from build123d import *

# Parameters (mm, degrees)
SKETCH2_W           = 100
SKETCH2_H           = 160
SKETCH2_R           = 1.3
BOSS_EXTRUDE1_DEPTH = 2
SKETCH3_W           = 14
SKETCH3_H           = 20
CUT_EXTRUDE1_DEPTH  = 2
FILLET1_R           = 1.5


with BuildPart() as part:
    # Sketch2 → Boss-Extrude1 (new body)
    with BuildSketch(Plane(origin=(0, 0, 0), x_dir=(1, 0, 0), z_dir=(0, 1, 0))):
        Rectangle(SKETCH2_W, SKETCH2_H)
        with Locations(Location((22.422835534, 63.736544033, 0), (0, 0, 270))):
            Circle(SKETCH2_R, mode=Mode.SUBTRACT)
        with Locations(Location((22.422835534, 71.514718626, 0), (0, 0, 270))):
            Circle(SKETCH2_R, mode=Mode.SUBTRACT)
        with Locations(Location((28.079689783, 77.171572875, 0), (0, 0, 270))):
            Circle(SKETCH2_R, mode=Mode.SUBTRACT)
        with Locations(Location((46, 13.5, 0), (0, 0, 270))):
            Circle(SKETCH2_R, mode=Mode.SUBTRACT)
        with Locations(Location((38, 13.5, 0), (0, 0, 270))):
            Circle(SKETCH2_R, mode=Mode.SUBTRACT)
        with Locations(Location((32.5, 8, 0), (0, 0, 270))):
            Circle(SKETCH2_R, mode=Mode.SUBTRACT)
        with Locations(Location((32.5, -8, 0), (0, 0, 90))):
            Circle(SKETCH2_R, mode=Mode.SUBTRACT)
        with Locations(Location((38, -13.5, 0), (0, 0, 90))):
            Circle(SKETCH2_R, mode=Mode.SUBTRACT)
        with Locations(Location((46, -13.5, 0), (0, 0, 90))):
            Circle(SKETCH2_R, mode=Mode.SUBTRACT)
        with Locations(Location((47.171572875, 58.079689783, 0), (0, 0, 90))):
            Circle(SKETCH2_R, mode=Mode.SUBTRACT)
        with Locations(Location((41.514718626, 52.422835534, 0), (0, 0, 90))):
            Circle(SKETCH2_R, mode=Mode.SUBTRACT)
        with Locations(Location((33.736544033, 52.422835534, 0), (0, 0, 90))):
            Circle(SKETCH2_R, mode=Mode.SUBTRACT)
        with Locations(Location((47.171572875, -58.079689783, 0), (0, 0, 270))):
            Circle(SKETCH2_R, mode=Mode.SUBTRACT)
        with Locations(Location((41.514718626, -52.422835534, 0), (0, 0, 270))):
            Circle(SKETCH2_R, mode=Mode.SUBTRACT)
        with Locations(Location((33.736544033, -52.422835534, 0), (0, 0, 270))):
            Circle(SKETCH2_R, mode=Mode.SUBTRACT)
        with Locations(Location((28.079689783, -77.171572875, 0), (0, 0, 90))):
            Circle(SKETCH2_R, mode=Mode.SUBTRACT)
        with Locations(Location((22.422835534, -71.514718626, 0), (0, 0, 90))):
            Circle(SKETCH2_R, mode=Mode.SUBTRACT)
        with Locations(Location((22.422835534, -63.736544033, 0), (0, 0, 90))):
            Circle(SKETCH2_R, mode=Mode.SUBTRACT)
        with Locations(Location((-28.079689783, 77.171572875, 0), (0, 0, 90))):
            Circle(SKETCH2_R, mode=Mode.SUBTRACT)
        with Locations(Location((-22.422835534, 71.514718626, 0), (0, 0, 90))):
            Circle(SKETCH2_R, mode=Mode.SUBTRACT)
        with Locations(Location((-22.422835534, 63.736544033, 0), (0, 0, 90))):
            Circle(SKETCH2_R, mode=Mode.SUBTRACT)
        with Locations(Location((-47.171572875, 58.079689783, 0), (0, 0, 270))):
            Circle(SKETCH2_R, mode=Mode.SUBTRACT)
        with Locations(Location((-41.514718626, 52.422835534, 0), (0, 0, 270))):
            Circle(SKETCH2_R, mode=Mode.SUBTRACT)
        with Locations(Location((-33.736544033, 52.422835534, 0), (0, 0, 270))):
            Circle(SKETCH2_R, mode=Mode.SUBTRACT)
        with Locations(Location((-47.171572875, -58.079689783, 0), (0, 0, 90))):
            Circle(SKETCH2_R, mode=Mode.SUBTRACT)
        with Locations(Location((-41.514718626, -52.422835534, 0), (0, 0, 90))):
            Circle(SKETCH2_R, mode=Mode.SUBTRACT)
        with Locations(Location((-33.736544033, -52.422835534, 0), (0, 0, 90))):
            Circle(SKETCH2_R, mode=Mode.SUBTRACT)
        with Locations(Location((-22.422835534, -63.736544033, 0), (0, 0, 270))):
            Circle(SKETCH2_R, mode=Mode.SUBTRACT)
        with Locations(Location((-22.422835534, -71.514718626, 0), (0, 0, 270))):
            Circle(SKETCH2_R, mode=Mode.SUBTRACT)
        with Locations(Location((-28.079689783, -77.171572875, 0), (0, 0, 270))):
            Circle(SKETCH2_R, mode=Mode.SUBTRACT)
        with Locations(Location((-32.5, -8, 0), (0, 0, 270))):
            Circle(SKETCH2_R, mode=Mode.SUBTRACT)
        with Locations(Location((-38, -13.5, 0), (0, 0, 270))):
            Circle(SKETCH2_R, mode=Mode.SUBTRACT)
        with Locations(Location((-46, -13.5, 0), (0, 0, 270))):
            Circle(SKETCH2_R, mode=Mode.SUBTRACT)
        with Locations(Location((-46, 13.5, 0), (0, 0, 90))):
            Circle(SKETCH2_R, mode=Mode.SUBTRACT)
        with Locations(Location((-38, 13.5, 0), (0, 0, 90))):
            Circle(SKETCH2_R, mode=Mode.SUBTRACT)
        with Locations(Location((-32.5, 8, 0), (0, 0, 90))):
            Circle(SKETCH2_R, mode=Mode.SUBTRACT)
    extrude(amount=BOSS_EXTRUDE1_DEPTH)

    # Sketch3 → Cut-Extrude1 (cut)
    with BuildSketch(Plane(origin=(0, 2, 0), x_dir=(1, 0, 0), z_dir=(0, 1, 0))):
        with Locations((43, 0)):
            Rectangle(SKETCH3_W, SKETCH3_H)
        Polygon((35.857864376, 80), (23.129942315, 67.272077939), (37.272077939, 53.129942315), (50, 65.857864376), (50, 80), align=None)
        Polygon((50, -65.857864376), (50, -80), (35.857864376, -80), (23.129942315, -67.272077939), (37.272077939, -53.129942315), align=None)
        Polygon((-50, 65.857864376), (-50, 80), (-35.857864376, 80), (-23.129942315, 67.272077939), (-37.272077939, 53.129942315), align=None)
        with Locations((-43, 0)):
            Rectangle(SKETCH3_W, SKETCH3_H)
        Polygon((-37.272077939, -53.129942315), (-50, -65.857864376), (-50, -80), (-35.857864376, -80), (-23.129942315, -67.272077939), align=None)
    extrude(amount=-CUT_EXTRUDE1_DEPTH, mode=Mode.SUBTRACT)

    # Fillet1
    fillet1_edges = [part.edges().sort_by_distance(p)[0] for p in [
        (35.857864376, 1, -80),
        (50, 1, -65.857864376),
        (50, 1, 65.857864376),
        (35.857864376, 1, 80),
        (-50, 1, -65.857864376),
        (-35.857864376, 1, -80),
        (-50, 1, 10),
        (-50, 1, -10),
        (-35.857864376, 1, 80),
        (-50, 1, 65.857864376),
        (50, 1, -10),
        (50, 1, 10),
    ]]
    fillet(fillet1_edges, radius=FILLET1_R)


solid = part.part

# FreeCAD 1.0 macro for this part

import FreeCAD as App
import Part
import Sketcher
from FreeCAD import Vector


def edges_at(feature, points):
    """Names of the edges that pass closest to the given points."""
    edges = feature.Shape.Edges
    near = lambda p: min(range(len(edges)), key=lambda i: edges[i].distToShape(Part.Vertex(*p))[0])
    return sorted({f"Edge{near(p) + 1}" for p in points})


def add_polygon(sketch, points):
    """Adds a closed chain of lines whose ends are joined by coincident constraints."""
    first, n = sketch.GeometryCount, len(points)
    for a, b in zip(points, points[1:] + points[:1]):
        sketch.addGeometry(Part.LineSegment(App.Vector(*a, 0), App.Vector(*b, 0)), False)
    for i in range(n):
        sketch.addConstraint(Sketcher.Constraint("Coincident", first + i, 2, first + (i + 1) % n, 1))

doc = App.newDocument("Part")
body = doc.addObject("PartDesign::Body", "Body")

sketch1 = body.newObject("Sketcher::SketchObject", "Sketch")
sketch1.AttachmentSupport = (doc.getObject("XZ_Plane"), [""])
sketch1.MapMode = "FlatFace"
add_polygon(sketch1, [(-50, -80), (-50, 80), (50, 80), (50, -80)])
sketch1.addGeometry(Part.Circle(Vector(-28.07969, 77.171573, 0), Vector(0, 0, 1), 1.3), False)
sketch1.addGeometry(Part.Circle(Vector(-47.171573, 58.07969, 0), Vector(0, 0, 1), 1.3), False)
sketch1.addGeometry(Part.Circle(Vector(-41.514719, 52.422836, 0), Vector(0, 0, 1), 1.3), False)
sketch1.addGeometry(Part.Circle(Vector(-33.736544, 52.422836, 0), Vector(0, 0, 1), 1.3), False)
sketch1.addGeometry(Part.Circle(Vector(-22.422836, 71.514719, 0), Vector(0, 0, 1), 1.3), False)
sketch1.addGeometry(Part.Circle(Vector(-22.422836, 63.736544, 0), Vector(0, 0, 1), 1.3), False)
sketch1.addGeometry(Part.Circle(Vector(-46, 13.5, 0), Vector(0, 0, 1), 1.3), False)
sketch1.addGeometry(Part.Circle(Vector(-38, 13.5, 0), Vector(0, 0, 1), 1.3), False)
sketch1.addGeometry(Part.Circle(Vector(-32.5, 8, 0), Vector(0, 0, 1), 1.3), False)
sketch1.addGeometry(Part.Circle(Vector(22.422836, 71.514719, 0), Vector(0, 0, 1), 1.3), False)
sketch1.addGeometry(Part.Circle(Vector(22.422836, 63.736544, 0), Vector(0, 0, 1), 1.3), False)
sketch1.addGeometry(Part.Circle(Vector(28.07969, 77.171573, 0), Vector(0, 0, 1), 1.3), False)
sketch1.addGeometry(Part.Circle(Vector(33.736544, 52.422836, 0), Vector(0, 0, 1), 1.3), False)
sketch1.addGeometry(Part.Circle(Vector(41.514719, 52.422836, 0), Vector(0, 0, 1), 1.3), False)
sketch1.addGeometry(Part.Circle(Vector(47.171573, 58.07969, 0), Vector(0, 0, 1), 1.3), False)
sketch1.addGeometry(Part.Circle(Vector(32.5, 8, 0), Vector(0, 0, 1), 1.3), False)
sketch1.addGeometry(Part.Circle(Vector(38, 13.5, 0), Vector(0, 0, 1), 1.3), False)
sketch1.addGeometry(Part.Circle(Vector(46, 13.5, 0), Vector(0, 0, 1), 1.3), False)
sketch1.addGeometry(Part.Circle(Vector(-46, -13.5, 0), Vector(0, 0, 1), 1.3), False)
sketch1.addGeometry(Part.Circle(Vector(-38, -13.5, 0), Vector(0, 0, 1), 1.3), False)
sketch1.addGeometry(Part.Circle(Vector(-32.5, -8, 0), Vector(0, 0, 1), 1.3), False)
sketch1.addGeometry(Part.Circle(Vector(-47.171573, -58.07969, 0), Vector(0, 0, 1), 1.3), False)
sketch1.addGeometry(Part.Circle(Vector(-41.514719, -52.422836, 0), Vector(0, 0, 1), 1.3), False)
sketch1.addGeometry(Part.Circle(Vector(-33.736544, -52.422836, 0), Vector(0, 0, 1), 1.3), False)
sketch1.addGeometry(Part.Circle(Vector(-28.07969, -77.171573, 0), Vector(0, 0, 1), 1.3), False)
sketch1.addGeometry(Part.Circle(Vector(-22.422836, -63.736544, 0), Vector(0, 0, 1), 1.3), False)
sketch1.addGeometry(Part.Circle(Vector(-22.422836, -71.514719, 0), Vector(0, 0, 1), 1.3), False)
sketch1.addGeometry(Part.Circle(Vector(32.5, -8, 0), Vector(0, 0, 1), 1.3), False)
sketch1.addGeometry(Part.Circle(Vector(38, -13.5, 0), Vector(0, 0, 1), 1.3), False)
sketch1.addGeometry(Part.Circle(Vector(46, -13.5, 0), Vector(0, 0, 1), 1.3), False)
sketch1.addGeometry(Part.Circle(Vector(22.422836, -63.736544, 0), Vector(0, 0, 1), 1.3), False)
sketch1.addGeometry(Part.Circle(Vector(22.422836, -71.514719, 0), Vector(0, 0, 1), 1.3), False)
sketch1.addGeometry(Part.Circle(Vector(33.736544, -52.422836, 0), Vector(0, 0, 1), 1.3), False)
sketch1.addGeometry(Part.Circle(Vector(41.514719, -52.422836, 0), Vector(0, 0, 1), 1.3), False)
sketch1.addGeometry(Part.Circle(Vector(47.171573, -58.07969, 0), Vector(0, 0, 1), 1.3), False)
sketch1.addGeometry(Part.Circle(Vector(28.07969, -77.171573, 0), Vector(0, 0, 1), 1.3), False)
sketch1.addConstraint(Sketcher.Constraint("Vertical", 0))
sketch1.addConstraint(Sketcher.Constraint("Horizontal", 1))
sketch1.addConstraint(Sketcher.Constraint("Vertical", 2))
sketch1.addConstraint(Sketcher.Constraint("Horizontal", 3))
sketch1.addConstraint(Sketcher.Constraint("Equal", 4, 5))
sketch1.addConstraint(Sketcher.Constraint("Equal", 5, 6))
sketch1.addConstraint(Sketcher.Constraint("Equal", 6, 7))
sketch1.addConstraint(Sketcher.Constraint("Equal", 7, 8))
sketch1.addConstraint(Sketcher.Constraint("Equal", 8, 9))
sketch1.addConstraint(Sketcher.Constraint("Equal", 9, 10))
sketch1.addConstraint(Sketcher.Constraint("Equal", 10, 11))
sketch1.addConstraint(Sketcher.Constraint("Equal", 11, 12))
sketch1.addConstraint(Sketcher.Constraint("Equal", 12, 13))
sketch1.addConstraint(Sketcher.Constraint("Equal", 13, 14))
sketch1.addConstraint(Sketcher.Constraint("Equal", 14, 15))
sketch1.addConstraint(Sketcher.Constraint("Equal", 15, 16))
sketch1.addConstraint(Sketcher.Constraint("Equal", 16, 17))
sketch1.addConstraint(Sketcher.Constraint("Equal", 17, 18))
sketch1.addConstraint(Sketcher.Constraint("Equal", 18, 19))
sketch1.addConstraint(Sketcher.Constraint("Equal", 19, 20))
sketch1.addConstraint(Sketcher.Constraint("Equal", 20, 21))
sketch1.addConstraint(Sketcher.Constraint("Equal", 21, 22))
sketch1.addConstraint(Sketcher.Constraint("Equal", 22, 23))
sketch1.addConstraint(Sketcher.Constraint("Equal", 23, 24))
sketch1.addConstraint(Sketcher.Constraint("Equal", 24, 25))
sketch1.addConstraint(Sketcher.Constraint("Equal", 25, 26))
sketch1.addConstraint(Sketcher.Constraint("Equal", 26, 27))
sketch1.addConstraint(Sketcher.Constraint("Equal", 27, 28))
sketch1.addConstraint(Sketcher.Constraint("Equal", 28, 29))
sketch1.addConstraint(Sketcher.Constraint("Equal", 29, 30))
sketch1.addConstraint(Sketcher.Constraint("Equal", 30, 31))
sketch1.addConstraint(Sketcher.Constraint("Equal", 31, 32))
sketch1.addConstraint(Sketcher.Constraint("Equal", 32, 33))
sketch1.addConstraint(Sketcher.Constraint("Equal", 33, 34))
sketch1.addConstraint(Sketcher.Constraint("Equal", 34, 35))
sketch1.addConstraint(Sketcher.Constraint("Equal", 35, 36))
sketch1.addConstraint(Sketcher.Constraint("Equal", 36, 37))
sketch1.addConstraint(Sketcher.Constraint("Equal", 37, 38))
sketch1.addConstraint(Sketcher.Constraint("Equal", 38, 39))
sketch1.addConstraint(Sketcher.Constraint("Symmetric", 21, 3, 22, 3, -1, 1))
sketch1.addConstraint(Sketcher.Constraint("Symmetric", 20, 3, 23, 3, -1, 1))
sketch1.addConstraint(Sketcher.Constraint("Symmetric", 19, 3, 24, 3, -1, 1))
sketch1.addConstraint(Sketcher.Constraint("Symmetric", 18, 3, 25, 3, -1, 1))
sketch1.addConstraint(Sketcher.Constraint("Symmetric", 17, 3, 26, 3, -1, 1))
sketch1.addConstraint(Sketcher.Constraint("Symmetric", 16, 3, 27, 3, -1, 1))
sketch1.addConstraint(Sketcher.Constraint("Symmetric", 15, 3, 28, 3, -1, 1))
sketch1.addConstraint(Sketcher.Constraint("Symmetric", 14, 3, 29, 3, -1, 1))
sketch1.addConstraint(Sketcher.Constraint("Symmetric", 13, 3, 30, 3, -1, 1))
sketch1.addConstraint(Sketcher.Constraint("Symmetric", 12, 3, 31, 3, -1, 1))
sketch1.addConstraint(Sketcher.Constraint("Symmetric", 11, 3, 32, 3, -1, 1))
sketch1.addConstraint(Sketcher.Constraint("Symmetric", 10, 3, 33, 3, -1, 1))
sketch1.addConstraint(Sketcher.Constraint("Symmetric", 9, 3, 34, 3, -1, 1))
sketch1.addConstraint(Sketcher.Constraint("Symmetric", 8, 3, 35, 3, -1, 1))
sketch1.addConstraint(Sketcher.Constraint("Symmetric", 7, 3, 36, 3, -1, 1))
sketch1.addConstraint(Sketcher.Constraint("Symmetric", 6, 3, 37, 3, -1, 1))
sketch1.addConstraint(Sketcher.Constraint("Symmetric", 5, 3, 38, 3, -1, 1))
sketch1.addConstraint(Sketcher.Constraint("Symmetric", 4, 3, 39, 3, -1, 1))
sketch1.addConstraint(Sketcher.Constraint("Symmetric", 0, 2, 2, 2, -1, 1))
sketch1.addConstraint(Sketcher.Constraint("Symmetric", 8, 3, 13, 3, -2))
sketch1.addConstraint(Sketcher.Constraint("Symmetric", 9, 3, 14, 3, -2))
sketch1.addConstraint(Sketcher.Constraint("Symmetric", 4, 3, 15, 3, -2))
sketch1.addConstraint(Sketcher.Constraint("Symmetric", 7, 3, 16, 3, -2))
sketch1.addConstraint(Sketcher.Constraint("Symmetric", 6, 3, 17, 3, -2))
sketch1.addConstraint(Sketcher.Constraint("Symmetric", 5, 3, 18, 3, -2))
sketch1.addConstraint(Sketcher.Constraint("Symmetric", 12, 3, 19, 3, -2))
sketch1.addConstraint(Sketcher.Constraint("Symmetric", 11, 3, 20, 3, -2))
sketch1.addConstraint(Sketcher.Constraint("Symmetric", 10, 3, 21, 3, -2))
sketch1.addConstraint(Sketcher.Constraint("Horizontal", 6, 3, 7, 3))
sketch1.addConstraint(Sketcher.Constraint("Horizontal", 10, 3, 11, 3))
sketch1.addConstraint(Sketcher.Constraint("Vertical", 8, 3, 9, 3))
sketch1.addConstraint(Sketcher.Constraint("Diameter", 4, 2.6))
sketch1.addConstraint(Sketcher.Constraint("DistanceX", 1, 1, 1, 2, 100.0))
sketch1.addConstraint(Sketcher.Constraint("DistanceY", 0, 1, 0, 2, 160.0))
sketch1.addConstraint(Sketcher.Constraint("DistanceX", 10, 3, -1, 1, 46.0))
sketch1.addConstraint(Sketcher.Constraint("DistanceX", 11, 3, -1, 1, 38.0))
sketch1.addConstraint(Sketcher.Constraint("DistanceY", -1, 1, 12, 3, 8.0))
sketch1.addConstraint(Sketcher.Constraint("DistanceY", 22, 3, 10, 3, 27.0))
sketch1.addConstraint(Sketcher.Constraint("DistanceX", 12, 3, -1, 1, 32.5))
sketch1.addConstraint(Sketcher.Constraint("DistanceX", 4, 3, -1, 1, 28.07969))
sketch1.addConstraint(Sketcher.Constraint("DistanceY", -1, 1, 5, 3, 58.07969))
sketch1.addConstraint(Sketcher.Constraint("DistanceX", 6, 3, -1, 1, 41.514719))
sketch1.addConstraint(Sketcher.Constraint("DistanceY", -1, 1, 8, 3, 71.514719))
sketch1.addConstraint(Sketcher.Constraint("DistanceX", 5, 3, 7, 3, 13.435029))
sketch1.addConstraint(Sketcher.Constraint("DistanceX", 7, 3, 8, 3, 11.313708))
sketch1.addConstraint(Sketcher.Constraint("DistanceY", 9, 3, 4, 3, 13.435029))
sketch1.addConstraint(Sketcher.Constraint("DistanceY", 7, 3, 9, 3, 11.313708))
sketch1.addConstraint(Sketcher.Constraint("DistanceX", 8, 3, 13, 3, 44.845671))
sketch1.addConstraint(Sketcher.Constraint("DistanceY", -1, 1, 4, 3, 77.171573))
pad1 = body.newObject("PartDesign::Pad", "Pad")
pad1.Profile = sketch1
pad1.Length = 2
pad1.Reversed = True

sketch2 = body.newObject("Sketcher::SketchObject", "Sketch001")
sketch2.AttachmentSupport = (doc.getObject("XZ_Plane"), [""])
sketch2.MapMode = "FlatFace"
sketch2.AttachmentOffset = App.Placement(Vector(0, 0, -2), App.Rotation())
add_polygon(sketch2, [(36, -10), (36, 10), (50, 10), (50, -10)])
add_polygon(sketch2, [(35.857864, -80), (23.129942, -67.272078), (37.272078, -53.129942), (50, -65.857864), (50, -80)])
add_polygon(sketch2, [(50, 80), (50, 65.857864), (37.272078, 53.129942), (23.129942, 67.272078), (35.857864, 80)])
add_polygon(sketch2, [(-50, -80), (-50, -65.857864), (-37.272078, -53.129942), (-23.129942, -67.272078), (-35.857864, -80)])
add_polygon(sketch2, [(-50, -10), (-50, 10), (-36, 10), (-36, -10)])
add_polygon(sketch2, [(-37.272078, 53.129942), (-50, 65.857864), (-50, 80), (-35.857864, 80), (-23.129942, 67.272078)])
sketch2.addConstraint(Sketcher.Constraint("Vertical", 0))
sketch2.addConstraint(Sketcher.Constraint("Horizontal", 1))
sketch2.addConstraint(Sketcher.Constraint("Vertical", 2))
sketch2.addConstraint(Sketcher.Constraint("Horizontal", 3))
sketch2.addConstraint(Sketcher.Constraint("Vertical", 7))
sketch2.addConstraint(Sketcher.Constraint("Horizontal", 8))
sketch2.addConstraint(Sketcher.Constraint("Vertical", 9))
sketch2.addConstraint(Sketcher.Constraint("Horizontal", 13))
sketch2.addConstraint(Sketcher.Constraint("Vertical", 14))
sketch2.addConstraint(Sketcher.Constraint("Horizontal", 18))
sketch2.addConstraint(Sketcher.Constraint("Vertical", 19))
sketch2.addConstraint(Sketcher.Constraint("Horizontal", 20))
sketch2.addConstraint(Sketcher.Constraint("Vertical", 21))
sketch2.addConstraint(Sketcher.Constraint("Horizontal", 22))
sketch2.addConstraint(Sketcher.Constraint("Vertical", 24))
sketch2.addConstraint(Sketcher.Constraint("Horizontal", 25))
sketch2.addConstraint(Sketcher.Constraint("Symmetric", 9, 2, 14, 2, -1, 1))
sketch2.addConstraint(Sketcher.Constraint("Symmetric", 10, 2, 15, 2, -1, 1))
sketch2.addConstraint(Sketcher.Constraint("Symmetric", 11, 2, 16, 2, -1, 1))
sketch2.addConstraint(Sketcher.Constraint("Symmetric", 12, 2, 17, 2, -1, 1))
sketch2.addConstraint(Sketcher.Constraint("Symmetric", 2, 2, 19, 2, -1, 1))
sketch2.addConstraint(Sketcher.Constraint("Symmetric", 0, 2, 21, 2, -1, 1))
sketch2.addConstraint(Sketcher.Constraint("Symmetric", 6, 2, 23, 2, -1, 1))
sketch2.addConstraint(Sketcher.Constraint("Symmetric", 8, 2, 25, 2, -1, 1))
sketch2.addConstraint(Sketcher.Constraint("Symmetric", 4, 2, 26, 2, -1, 1))
sketch2.addConstraint(Sketcher.Constraint("Symmetric", 5, 2, 27, 2, -1, 1))
sketch2.addConstraint(Sketcher.Constraint("Symmetric", 6, 2, 14, 2, -2))
sketch2.addConstraint(Sketcher.Constraint("Symmetric", 5, 2, 15, 2, -2))
sketch2.addConstraint(Sketcher.Constraint("Symmetric", 4, 2, 16, 2, -2))
sketch2.addConstraint(Sketcher.Constraint("Symmetric", 8, 2, 17, 2, -2))
sketch2.addConstraint(Sketcher.Constraint("Perpendicular", 4, 5))
sketch2.addConstraint(Sketcher.Constraint("Perpendicular", 5, 6))
sketch2.addConstraint(Sketcher.Constraint("Perpendicular", 6, 10))
sketch2.addConstraint(Sketcher.Constraint("Horizontal", 1, 2, 19, 2))
sketch2.addConstraint(Sketcher.Constraint("Vertical", 2, 2, 6, 2))
sketch2.addConstraint(Sketcher.Constraint("Equal", 25, 7))
sketch2.addConstraint(Sketcher.Constraint("DistanceX", 1, 1, 1, 2, 14.0))
sketch2.addConstraint(Sketcher.Constraint("DistanceY", 0, 1, 0, 2, 20.0))
sketch2.addConstraint(Sketcher.Constraint("Distance", 4, 18.0))
sketch2.addConstraint(Sketcher.Constraint("Distance", 5, 20.0))
sketch2.addConstraint(Sketcher.Constraint("DistanceX", -1, 1, 0, 2, 36.0))
sketch2.addConstraint(Sketcher.Constraint("DistanceY", 7, 2, -1, 1, 80.0))
pocket1 = body.newObject("PartDesign::Pocket", "Pocket")
pocket1.Profile = sketch2
pocket1.Length = 2
pocket1.Reversed = True
doc.recompute()

fillet = body.newObject("PartDesign::Fillet", "Fillet")
fillet.Base = (pocket1, edges_at(pocket1, [
    (35.858, 1, -80),
    (50, 1, -65.858),
    (50, 1, 65.858),
    (35.858, 1, 80),
    (-50, 1, -65.858),
    (-35.858, 1, -80),
    (-50, 1, 10),
    (-50, 1, -10),
    (-35.858, 1, 80),
    (-50, 1, 65.858),
    (50, 1, -10),
    (50, 1, 10),
]))
fillet.Radius = 1.5

doc.recompute()
